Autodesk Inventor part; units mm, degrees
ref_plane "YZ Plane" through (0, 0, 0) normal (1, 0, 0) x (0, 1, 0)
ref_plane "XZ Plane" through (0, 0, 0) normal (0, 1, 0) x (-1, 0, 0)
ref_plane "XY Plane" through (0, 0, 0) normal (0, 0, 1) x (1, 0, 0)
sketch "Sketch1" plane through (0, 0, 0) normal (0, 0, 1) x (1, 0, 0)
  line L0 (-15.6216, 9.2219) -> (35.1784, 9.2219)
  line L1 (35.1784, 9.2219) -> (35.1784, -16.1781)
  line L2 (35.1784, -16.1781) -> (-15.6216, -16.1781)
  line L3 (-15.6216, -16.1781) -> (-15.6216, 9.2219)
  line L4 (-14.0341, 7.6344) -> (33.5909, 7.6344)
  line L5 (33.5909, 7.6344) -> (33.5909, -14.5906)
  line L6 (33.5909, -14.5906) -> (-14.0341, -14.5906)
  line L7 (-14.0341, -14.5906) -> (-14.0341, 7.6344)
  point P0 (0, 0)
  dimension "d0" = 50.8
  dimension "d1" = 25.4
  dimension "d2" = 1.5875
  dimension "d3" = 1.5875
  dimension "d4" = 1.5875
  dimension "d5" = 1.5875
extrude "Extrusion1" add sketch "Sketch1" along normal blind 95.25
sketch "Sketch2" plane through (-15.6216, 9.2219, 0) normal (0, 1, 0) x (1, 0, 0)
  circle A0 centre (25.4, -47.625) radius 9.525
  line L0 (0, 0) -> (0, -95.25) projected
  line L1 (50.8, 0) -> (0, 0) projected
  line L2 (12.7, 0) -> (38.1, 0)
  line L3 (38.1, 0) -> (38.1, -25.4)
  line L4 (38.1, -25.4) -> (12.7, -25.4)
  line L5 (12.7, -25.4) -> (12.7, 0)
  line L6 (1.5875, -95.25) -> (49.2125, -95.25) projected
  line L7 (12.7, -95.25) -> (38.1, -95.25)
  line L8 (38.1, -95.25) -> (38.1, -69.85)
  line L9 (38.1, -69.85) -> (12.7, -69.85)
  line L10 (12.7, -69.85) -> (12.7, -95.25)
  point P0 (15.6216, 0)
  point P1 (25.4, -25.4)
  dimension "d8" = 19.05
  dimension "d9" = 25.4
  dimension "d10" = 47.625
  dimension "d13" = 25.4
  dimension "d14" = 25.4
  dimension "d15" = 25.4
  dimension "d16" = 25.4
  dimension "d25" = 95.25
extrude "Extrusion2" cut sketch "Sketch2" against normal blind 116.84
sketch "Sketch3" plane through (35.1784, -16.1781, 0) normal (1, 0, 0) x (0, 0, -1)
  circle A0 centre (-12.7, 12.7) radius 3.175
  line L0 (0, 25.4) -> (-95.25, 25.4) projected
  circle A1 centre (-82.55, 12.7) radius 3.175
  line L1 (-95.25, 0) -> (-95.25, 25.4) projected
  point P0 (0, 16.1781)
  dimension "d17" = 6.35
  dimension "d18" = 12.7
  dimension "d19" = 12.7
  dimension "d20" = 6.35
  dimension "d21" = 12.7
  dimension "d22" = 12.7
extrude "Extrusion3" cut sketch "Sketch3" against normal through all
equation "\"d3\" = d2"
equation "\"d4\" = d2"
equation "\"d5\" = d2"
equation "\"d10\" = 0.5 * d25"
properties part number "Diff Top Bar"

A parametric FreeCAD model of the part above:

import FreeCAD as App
import Part
import Sketcher
Q = App.Units.Quantity

doc = App.newDocument("Part")
body = doc.addObject("PartDesign::Body", "Body")

sketch1 = body.newObject("Sketcher::SketchObject", "Sketch")
sketch1.AttachmentSupport = (doc.getObject("XY_Plane"), [""])
sketch1.MapMode = "FlatFace"
sketch1.addGeometry(Part.LineSegment(App.Vector(35, 9, 0), App.Vector(-16, 9, 0)), False)
sketch1.addGeometry(Part.LineSegment(App.Vector(-16, 9, 0), App.Vector(-16, -16, 0)), False)
sketch1.addGeometry(Part.LineSegment(App.Vector(-16, -16, 0), App.Vector(35, -16, 0)), False)
sketch1.addGeometry(Part.LineSegment(App.Vector(35, -16, 0), App.Vector(35, 9, 0)), False)
sketch1.addGeometry(Part.LineSegment(App.Vector(-14, -15, 0), App.Vector(-14, 8, 0)), False)
sketch1.addGeometry(Part.LineSegment(App.Vector(-14, 8, 0), App.Vector(34, 8, 0)), False)
sketch1.addGeometry(Part.LineSegment(App.Vector(34, 8, 0), App.Vector(34, -15, 0)), False)
sketch1.addGeometry(Part.LineSegment(App.Vector(34, -15, 0), App.Vector(-14, -15, 0)), False)
sketch1.addConstraint(Sketcher.Constraint("Coincident", 0, 2, 1, 1))
sketch1.addConstraint(Sketcher.Constraint("Coincident", 1, 2, 2, 1))
sketch1.addConstraint(Sketcher.Constraint("Coincident", 2, 2, 3, 1))
sketch1.addConstraint(Sketcher.Constraint("Coincident", 3, 2, 0, 1))
sketch1.addConstraint(Sketcher.Constraint("Coincident", 4, 2, 5, 1))
sketch1.addConstraint(Sketcher.Constraint("Coincident", 5, 2, 6, 1))
sketch1.addConstraint(Sketcher.Constraint("Coincident", 6, 2, 7, 1))
sketch1.addConstraint(Sketcher.Constraint("Coincident", 7, 2, 4, 1))
sketch1.addConstraint(Sketcher.Constraint("Horizontal", 0))
sketch1.addConstraint(Sketcher.Constraint("Vertical", 1))
sketch1.addConstraint(Sketcher.Constraint("Horizontal", 2))
sketch1.addConstraint(Sketcher.Constraint("Vertical", 3))
sketch1.addConstraint(Sketcher.Constraint("Vertical", 4))
sketch1.addConstraint(Sketcher.Constraint("Horizontal", 5))
sketch1.addConstraint(Sketcher.Constraint("Vertical", 6))
sketch1.addConstraint(Sketcher.Constraint("Horizontal", 7))
sketch1.addConstraint(Sketcher.Constraint("DistanceX", 0, 2, 0, 1, Q("2 in")))
sketch1.addConstraint(Sketcher.Constraint("DistanceY", 1, 2, 1, 1, Q("1 in")))
sketch1.addConstraint(Sketcher.Constraint("DistanceX", 0, 2, 4, 2, Q("0.0625 in")))
sketch1.addConstraint(Sketcher.Constraint("DistanceY", 4, 2, 0, 2, Q("0.0625 in")))
sketch1.addConstraint(Sketcher.Constraint("DistanceX", 5, 2, 3, 2, Q("0.0625 in")))
sketch1.addConstraint(Sketcher.Constraint("DistanceY", 2, 2, 6, 2, Q("0.0625 in")))
sketch1.addConstraint(Sketcher.Constraint("DistanceX", 0, 2, -1, 1, 15.6216))
sketch1.addConstraint(Sketcher.Constraint("DistanceY", -1, 1, 0, 2, 9.222))
pad1 = body.newObject("PartDesign::Pad", "Pad")
pad1.Profile = sketch1
pad1.Length = Q("3.75 in")

sketch2 = body.newObject("Sketcher::SketchObject", "Sketch001")
sketch2.AttachmentSupport = (doc.getObject("XZ_Plane"), [""])
sketch2.MapMode = "FlatFace"
sketch2.AttachmentOffset = App.Placement(App.Vector(0, 0, -9.2219), App.Rotation())
sketch2.addGeometry(Part.Circle(App.Vector(10, 48, 0), App.Vector(0, 0, 1), 10), False)
sketch2.addGeometry(Part.LineSegment(App.Vector(22, 25, 0), App.Vector(22, 0, 0)), False)
sketch2.addGeometry(Part.LineSegment(App.Vector(22, 0, 0), App.Vector(-3, 0, 0)), False)
sketch2.addGeometry(Part.LineSegment(App.Vector(-3, 0, 0), App.Vector(-3, 25, 0)), False)
sketch2.addGeometry(Part.LineSegment(App.Vector(-3, 25, 0), App.Vector(22, 25, 0)), False)
sketch2.addGeometry(Part.LineSegment(App.Vector(-3, 70, 0), App.Vector(-3, 95, 0)), False)
sketch2.addGeometry(Part.LineSegment(App.Vector(-3, 95, 0), App.Vector(22, 95, 0)), False)
sketch2.addGeometry(Part.LineSegment(App.Vector(22, 95, 0), App.Vector(22, 70, 0)), False)
sketch2.addGeometry(Part.LineSegment(App.Vector(22, 70, 0), App.Vector(-3, 70, 0)), False)
sketch2.addConstraint(Sketcher.Constraint("Coincident", 1, 2, 2, 1))
sketch2.addConstraint(Sketcher.Constraint("Coincident", 2, 2, 3, 1))
sketch2.addConstraint(Sketcher.Constraint("Coincident", 3, 2, 4, 1))
sketch2.addConstraint(Sketcher.Constraint("Coincident", 4, 2, 1, 1))
sketch2.addConstraint(Sketcher.Constraint("Coincident", 5, 2, 6, 1))
sketch2.addConstraint(Sketcher.Constraint("Coincident", 6, 2, 7, 1))
sketch2.addConstraint(Sketcher.Constraint("Coincident", 7, 2, 8, 1))
sketch2.addConstraint(Sketcher.Constraint("Coincident", 8, 2, 5, 1))
sketch2.addConstraint(Sketcher.Constraint("Vertical", 1))
sketch2.addConstraint(Sketcher.Constraint("Horizontal", 2))
sketch2.addConstraint(Sketcher.Constraint("Vertical", 3))
sketch2.addConstraint(Sketcher.Constraint("Horizontal", 4))
sketch2.addConstraint(Sketcher.Constraint("Vertical", 5))
sketch2.addConstraint(Sketcher.Constraint("Horizontal", 6))
sketch2.addConstraint(Sketcher.Constraint("Vertical", 7))
sketch2.addConstraint(Sketcher.Constraint("Horizontal", 8))
sketch2.addConstraint(Sketcher.Constraint("PointOnObject", 1, 2, -1))
sketch2.addConstraint(Sketcher.Constraint("Vertical", 3, 2, 5, 2))
sketch2.addConstraint(Sketcher.Constraint("Vertical", 4, 2, 6, 2))
sketch2.addConstraint(Sketcher.Constraint("Equal", 8, 1))
sketch2.addConstraint(Sketcher.Constraint("Equal", 3, 5))
sketch2.addConstraint(Sketcher.Constraint("Diameter", 0, Q("0.75 in")))
sketch2.addConstraint(Sketcher.Constraint("DistanceX", 2, 2, 2, 1, Q("1 in")))
sketch2.addConstraint(Sketcher.Constraint("DistanceY", -1, 1, 5, 2, Q("3.75 in")))
sketch2.addConstraint(Sketcher.Constraint("DistanceY", -1, 1, 0, 3, Q("1.875 in")))
sketch2.addConstraint(Sketcher.Constraint("DistanceX", 0, 3, 1, 2, Q("0.5 in")))
sketch2.addConstraint(Sketcher.Constraint("DistanceX", -1, 1, 0, 3, 9.7784))
pocket1 = body.newObject("PartDesign::Pocket", "Pocket")
pocket1.Profile = sketch2
pocket1.Length = Q("4.6 in")
pocket1.Reversed = True

sketch3 = body.newObject("Sketcher::SketchObject", "Sketch002")
sketch3.AttachmentSupport = (doc.getObject("YZ_Plane"), [""])
sketch3.MapMode = "FlatFace"
sketch3.AttachmentOffset = App.Placement(App.Vector(0, 0, 35.1784), App.Rotation())
sketch3.addGeometry(Part.Circle(App.Vector(-3.5, 12.7, 0), App.Vector(0, 0, 1), 3.2), False)
sketch3.addGeometry(Part.Circle(App.Vector(-3.5, 82.5, 0), App.Vector(0, 0, 1), 3.2), False)
sketch3.addConstraint(Sketcher.Constraint("Equal", 0, 1))
sketch3.addConstraint(Sketcher.Constraint("Vertical", 0, 3, 1, 3))
sketch3.addConstraint(Sketcher.Constraint("Diameter", 0, Q("0.25 in")))
sketch3.addConstraint(Sketcher.Constraint("DistanceY", -1, 1, 0, 3, Q("0.5 in")))
sketch3.addConstraint(Sketcher.Constraint("DistanceY", -1, 1, 1, 3, Q("3.25 in")))
sketch3.addConstraint(Sketcher.Constraint("DistanceX", 0, 3, -1, 1, 3.478))
pocket2 = body.newObject("PartDesign::Pocket", "Pocket001")
pocket2.Profile = sketch3
pocket2.Type = "ThroughAll"

doc.recompute()
